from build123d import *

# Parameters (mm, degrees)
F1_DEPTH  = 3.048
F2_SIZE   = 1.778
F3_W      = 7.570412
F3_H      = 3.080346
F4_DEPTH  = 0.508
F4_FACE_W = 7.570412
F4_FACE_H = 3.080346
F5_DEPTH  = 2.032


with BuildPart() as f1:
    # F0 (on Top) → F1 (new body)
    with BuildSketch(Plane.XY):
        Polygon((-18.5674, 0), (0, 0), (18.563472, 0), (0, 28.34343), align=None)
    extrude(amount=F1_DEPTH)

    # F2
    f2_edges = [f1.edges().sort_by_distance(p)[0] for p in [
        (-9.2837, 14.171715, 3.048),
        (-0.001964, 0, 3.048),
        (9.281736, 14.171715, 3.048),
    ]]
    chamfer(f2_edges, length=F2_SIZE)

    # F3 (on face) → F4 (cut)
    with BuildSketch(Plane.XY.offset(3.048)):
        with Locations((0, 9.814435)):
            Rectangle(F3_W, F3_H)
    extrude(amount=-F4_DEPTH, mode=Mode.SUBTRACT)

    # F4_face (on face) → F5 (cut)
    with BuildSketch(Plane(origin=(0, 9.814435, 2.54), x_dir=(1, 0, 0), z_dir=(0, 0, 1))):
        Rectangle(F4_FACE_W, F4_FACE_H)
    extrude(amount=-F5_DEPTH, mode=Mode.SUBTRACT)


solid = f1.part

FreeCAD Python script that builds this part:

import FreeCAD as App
import Part
import Sketcher
from FreeCAD import Vector
Q = App.Units.Quantity


def edges_at(feature, points):
    """Names of the edges that pass closest to the given points."""
    edges = feature.Shape.Edges
    near = lambda p: min(range(len(edges)), key=lambda i: edges[i].distToShape(Part.Vertex(*p))[0])
    return sorted({f"Edge{near(p) + 1}" for p in points})

doc = App.newDocument("Part")
params = doc.addObject("Spreadsheet::Sheet", "Params")
for row, (alias, value) in enumerate([
    ("sketch1_length", "1.334 in"),
    ("pad1_length", "0.12 in"),
    ("chamfer_size", "0.07 in"),
    ("pocket1_length", "0.02 in"),
    ("pocket2_length", "0.08 in"),
], start=1):
    params.set(f"A{row}", alias)
    params.set(f"B{row}", "=" + value)
    params.setAlias(f"B{row}", alias)

body = doc.addObject("PartDesign::Body", "Body")

# Sketch on XY plane
sketch1 = body.newObject("Sketcher::SketchObject", "Sketch")
sketch1.AttachmentSupport = (doc.getObject("XY_Plane"), [""])
sketch1.MapMode = "FlatFace"
sketch1.addGeometry(Part.LineSegment(Vector(-19, 0, 0), Vector(19, 0, 0)), False)
sketch1.addGeometry(Part.LineSegment(Vector(19, 0, 0), Vector(0, 28, 0)), False)
sketch1.addGeometry(Part.LineSegment(Vector(0, 28, 0), Vector(-19, 0, 0)), False)
sketch1.addConstraint(Sketcher.Constraint("Coincident", 0, 2, 1, 1))
sketch1.addConstraint(Sketcher.Constraint("Coincident", 1, 2, 2, 1))
sketch1.addConstraint(Sketcher.Constraint("Coincident", 2, 2, 0, 1))
sketch1.addConstraint(Sketcher.Constraint("Horizontal", 0))
sketch1.addConstraint(Sketcher.Constraint("PointOnObject", 0, 2, -1))
sketch1.addConstraint(Sketcher.Constraint("PointOnObject", 1, 2, -2))
sketch1.addConstraint(Sketcher.Constraint("Distance", 2, Q("1.334 in")))
sketch1.addConstraint(Sketcher.Constraint("DistanceX", 2, 2, -1, 1, Q("0.731 in")))
sketch1.addConstraint(Sketcher.Constraint("DistanceX", 0, 1, 0, 2, Q("37.130872 mm")))
sketch1.setExpression("Constraints[6]", "Params.sketch1_length")
pad1 = body.newObject("PartDesign::Pad", "Pad")
pad1.Profile = sketch1
pad1.setExpression("Length", "Params.pad1_length")
doc.recompute()

chamfer = body.newObject("PartDesign::Chamfer", "Chamfer")
chamfer.Base = (pad1, edges_at(pad1, [(-9.284, 14.172, 3.048), (-0.002, 0, 3.048), (9.282, 14.172, 3.048)]))
chamfer.setExpression("Size", "Params.chamfer_size")

# Sketch on XY plane
sketch2 = body.newObject("Sketcher::SketchObject", "Sketch001")
sketch2.AttachmentSupport = (doc.getObject("XY_Plane"), [""])
sketch2.MapMode = "FlatFace"
sketch2.AttachmentOffset = App.Placement(Vector(0, 0, 0.12 * 25.4), App.Rotation())
sketch2.addGeometry(Part.LineSegment(Vector(-3.8, 11.4, 0), Vector(-3.8, 8.3, 0)), False)
sketch2.addGeometry(Part.LineSegment(Vector(-3.8, 8.3, 0), Vector(3.8, 8.3, 0)), False)
sketch2.addGeometry(Part.LineSegment(Vector(3.8, 8.3, 0), Vector(3.8, 11.4, 0)), False)
sketch2.addGeometry(Part.LineSegment(Vector(3.8, 11.4, 0), Vector(-3.8, 11.4, 0)), False)
sketch2.addConstraint(Sketcher.Constraint("Coincident", 0, 2, 1, 1))
sketch2.addConstraint(Sketcher.Constraint("Coincident", 1, 2, 2, 1))
sketch2.addConstraint(Sketcher.Constraint("Coincident", 2, 2, 3, 1))
sketch2.addConstraint(Sketcher.Constraint("Coincident", 3, 2, 0, 1))
sketch2.addConstraint(Sketcher.Constraint("Vertical", 0))
sketch2.addConstraint(Sketcher.Constraint("Horizontal", 1))
sketch2.addConstraint(Sketcher.Constraint("Vertical", 2))
sketch2.addConstraint(Sketcher.Constraint("Horizontal", 3))
sketch2.addConstraint(Sketcher.Constraint("DistanceX", 1, 1, 1, 2, Q("7.570412 mm")))
sketch2.addConstraint(Sketcher.Constraint("DistanceY", 0, 2, 0, 1, Q("3.080346 mm")))
sketch2.addConstraint(Sketcher.Constraint("DistanceY", -1, 1, 2, 2, Q("11.354608 mm")))
sketch2.addConstraint(Sketcher.Constraint("DistanceX", 0, 2, -1, 1, Q("3.785206 mm")))
pocket1 = body.newObject("PartDesign::Pocket", "Pocket")
pocket1.Profile = sketch2
pocket1.setExpression("Length", "Params.pocket1_length")

# Sketch on XY plane
sketch3 = body.newObject("Sketcher::SketchObject", "Sketch002")
sketch3.AttachmentSupport = (doc.getObject("XY_Plane"), [""])
sketch3.MapMode = "FlatFace"
sketch3.AttachmentOffset = App.Placement(Vector(0, 0, 0.1 * 25.4), App.Rotation())
sketch3.addGeometry(Part.LineSegment(Vector(-3.8, 11.4, 0), Vector(-3.8, 8.3, 0)), False)
sketch3.addGeometry(Part.LineSegment(Vector(-3.8, 8.3, 0), Vector(3.8, 8.3, 0)), False)
sketch3.addGeometry(Part.LineSegment(Vector(3.8, 8.3, 0), Vector(3.8, 11.4, 0)), False)
sketch3.addGeometry(Part.LineSegment(Vector(3.8, 11.4, 0), Vector(-3.8, 11.4, 0)), False)
sketch3.addConstraint(Sketcher.Constraint("Coincident", 0, 2, 1, 1))
sketch3.addConstraint(Sketcher.Constraint("Coincident", 1, 2, 2, 1))
sketch3.addConstraint(Sketcher.Constraint("Coincident", 2, 2, 3, 1))
sketch3.addConstraint(Sketcher.Constraint("Coincident", 3, 2, 0, 1))
sketch3.addConstraint(Sketcher.Constraint("Vertical", 0))
sketch3.addConstraint(Sketcher.Constraint("Horizontal", 1))
sketch3.addConstraint(Sketcher.Constraint("Vertical", 2))
sketch3.addConstraint(Sketcher.Constraint("Horizontal", 3))
sketch3.addConstraint(Sketcher.Constraint("DistanceX", 1, 1, 1, 2, Q("7.570412 mm")))
sketch3.addConstraint(Sketcher.Constraint("DistanceY", 0, 2, 0, 1, Q("3.080346 mm")))
sketch3.addConstraint(Sketcher.Constraint("DistanceY", -1, 1, 2, 2, Q("11.354608 mm")))
sketch3.addConstraint(Sketcher.Constraint("DistanceX", 0, 2, -1, 1, Q("3.785206 mm")))
pocket2 = body.newObject("PartDesign::Pocket", "Pocket001")
pocket2.Profile = sketch3
pocket2.setExpression("Length", "Params.pocket2_length")

doc.recompute()
